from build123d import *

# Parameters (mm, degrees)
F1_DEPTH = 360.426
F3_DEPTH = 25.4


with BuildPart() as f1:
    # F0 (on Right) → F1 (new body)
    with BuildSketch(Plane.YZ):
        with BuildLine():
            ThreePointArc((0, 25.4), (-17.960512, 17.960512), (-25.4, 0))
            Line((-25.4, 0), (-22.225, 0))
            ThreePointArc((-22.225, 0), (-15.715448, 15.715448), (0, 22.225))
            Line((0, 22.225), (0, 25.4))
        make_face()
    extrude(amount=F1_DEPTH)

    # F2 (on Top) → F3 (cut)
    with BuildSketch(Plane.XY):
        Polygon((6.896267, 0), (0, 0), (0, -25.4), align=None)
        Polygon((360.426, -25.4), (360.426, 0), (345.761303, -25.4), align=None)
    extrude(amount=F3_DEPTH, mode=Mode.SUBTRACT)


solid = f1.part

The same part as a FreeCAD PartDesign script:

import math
import FreeCAD as App
import Part
import Sketcher
from FreeCAD import Vector
Q = App.Units.Quantity


def add_polygon(sketch, points):
    """Adds a closed chain of lines whose ends are joined by coincident constraints."""
    first, n = sketch.GeometryCount, len(points)
    for a, b in zip(points, points[1:] + points[:1]):
        sketch.addGeometry(Part.LineSegment(App.Vector(*a, 0), App.Vector(*b, 0)), False)
    for i in range(n):
        sketch.addConstraint(Sketcher.Constraint("Coincident", first + i, 2, first + (i + 1) % n, 1))

doc = App.newDocument("Part")
body = doc.addObject("PartDesign::Body", "Body")

# Sketch on YZ plane
sketch1 = body.newObject("Sketcher::SketchObject", "Sketch")
sketch1.AttachmentSupport = (doc.getObject("YZ_Plane"), [""])
sketch1.MapMode = "FlatFace"
sketch1.addGeometry(Part.ArcOfCircle(Part.Circle(Vector(0, 0, 0), Vector(0, 0, 1), 25.4), math.radians(90), math.radians(180)), False)
sketch1.addGeometry(Part.LineSegment(Vector(-25.4, 0, 0), Vector(-22.2, 0, 0)), False)
sketch1.addGeometry(Part.ArcOfCircle(Part.Circle(Vector(0, 0, 0), Vector(0, 0, 1), 22.2), math.radians(90), math.radians(180)), False)
sketch1.addGeometry(Part.LineSegment(Vector(0, 22.2, 0), Vector(0, 25.4, 0)), False)
sketch1.addConstraint(Sketcher.Constraint("Coincident", 0, 2, 1, 1))
sketch1.addConstraint(Sketcher.Constraint("Coincident", 1, 2, 2, 2))
sketch1.addConstraint(Sketcher.Constraint("Coincident", 2, 1, 3, 1))
sketch1.addConstraint(Sketcher.Constraint("Coincident", 3, 2, 0, 1))
sketch1.addConstraint(Sketcher.Constraint("Horizontal", 1))
sketch1.addConstraint(Sketcher.Constraint("Vertical", 3))
sketch1.addConstraint(Sketcher.Constraint("Coincident", 0, 3, -1, 1))
sketch1.addConstraint(Sketcher.Constraint("Coincident", 2, 3, -1, 1))
sketch1.addConstraint(Sketcher.Constraint("PointOnObject", 0, 2, -1))
sketch1.addConstraint(Sketcher.Constraint("PointOnObject", 2, 1, -2))
sketch1.addConstraint(Sketcher.Constraint("Radius", 0, Q("1 in")))
sketch1.addConstraint(Sketcher.Constraint("Radius", 2, Q("0.875 in")))
pad1 = body.newObject("PartDesign::Pad", "Pad")
pad1.Profile = sketch1
pad1.Length = Q("14.19 in")

# Sketch on XY plane
sketch2 = body.newObject("Sketcher::SketchObject", "Sketch001")
sketch2.AttachmentSupport = (doc.getObject("XY_Plane"), [""])
sketch2.MapMode = "FlatFace"
add_polygon(sketch2, [(7, 0), (0, 0), (0, -25)])  # lines 0-2
add_polygon(sketch2, [(360, -25), (360, 0), (346, -25)])  # lines 3-5
sketch2.addConstraint(Sketcher.Constraint("Horizontal", 0))
sketch2.addConstraint(Sketcher.Constraint("Vertical", 1))
sketch2.addConstraint(Sketcher.Constraint("Vertical", 3))
sketch2.addConstraint(Sketcher.Constraint("Horizontal", 5))
sketch2.addConstraint(Sketcher.Constraint("Coincident", 0, 2, -1, 1))
sketch2.addConstraint(Sketcher.Constraint("PointOnObject", 3, 2, -1))
sketch2.addConstraint(Sketcher.Constraint("Horizontal", 1, 2, 4, 2))
sketch2.addConstraint(Sketcher.Constraint("DistanceY", 1, 2, 1, 1, Q("1 in")))
sketch2.addConstraint(Sketcher.Constraint("Angle", 4, Q("-120 deg")))
sketch2.addConstraint(Sketcher.Constraint("DistanceX", -1, 1, 3, 2, Q("14.19 in")))
sketch2.addConstraint(Sketcher.Constraint("Angle", 2, Q("74.81 deg")))
pocket1 = body.newObject("PartDesign::Pocket", "Pocket")
pocket1.Profile = sketch2
pocket1.Length = Q("1 in")
pocket1.Reversed = True

doc.recompute()
